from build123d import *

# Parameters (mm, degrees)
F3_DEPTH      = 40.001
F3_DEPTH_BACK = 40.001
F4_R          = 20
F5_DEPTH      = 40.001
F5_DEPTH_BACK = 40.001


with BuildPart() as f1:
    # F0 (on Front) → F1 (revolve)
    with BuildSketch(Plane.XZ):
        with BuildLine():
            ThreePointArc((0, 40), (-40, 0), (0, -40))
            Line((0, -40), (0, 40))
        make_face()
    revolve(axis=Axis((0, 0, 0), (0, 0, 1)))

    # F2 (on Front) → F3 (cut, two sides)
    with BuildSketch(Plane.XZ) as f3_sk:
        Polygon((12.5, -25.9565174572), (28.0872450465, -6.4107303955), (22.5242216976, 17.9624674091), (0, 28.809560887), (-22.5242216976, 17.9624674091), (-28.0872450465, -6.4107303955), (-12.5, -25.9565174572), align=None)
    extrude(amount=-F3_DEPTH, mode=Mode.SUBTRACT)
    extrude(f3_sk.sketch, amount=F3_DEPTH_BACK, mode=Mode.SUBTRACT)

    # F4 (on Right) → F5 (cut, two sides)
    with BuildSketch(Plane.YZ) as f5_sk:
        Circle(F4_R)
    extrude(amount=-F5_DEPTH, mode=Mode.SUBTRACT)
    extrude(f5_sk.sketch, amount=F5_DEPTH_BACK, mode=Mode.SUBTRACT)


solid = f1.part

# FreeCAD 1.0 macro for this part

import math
import FreeCAD as App
import Part
import Sketcher
from FreeCAD import Vector
Q = App.Units.Quantity

doc = App.newDocument("Part")
body = doc.addObject("PartDesign::Body", "Body")

# Sketch on XZ plane
sketch1 = doc.addObject("Sketcher::SketchObject", "Sketch")
body.addObject(sketch1)
sketch1.AttachmentSupport = (doc.XZ_Plane, [""])
sketch1.MapMode = "FlatFace"
sketch1.addGeometry(Part.ArcOfCircle(Part.Circle(Vector(0, 0, 0), Vector(0, 0, 1), 40), math.radians(90), math.radians(270)), False)
sketch1.addGeometry(Part.LineSegment(Vector(0, -40, 0), Vector(0, 40, 0)), False)
sketch1.addConstraint(Sketcher.Constraint("Coincident", 0, 1, 1, 2))
sketch1.addConstraint(Sketcher.Constraint("Coincident", 1, 1, 0, 2))
sketch1.addConstraint(Sketcher.Constraint("Vertical", 1))
sketch1.addConstraint(Sketcher.Constraint("Coincident", 0, 3, -1, 1))
sketch1.addConstraint(Sketcher.Constraint("PointOnObject", 0, 1, -2))
sketch1.addConstraint(Sketcher.Constraint("Radius", 0, Q("40 mm")))
revolution = doc.addObject("PartDesign::Revolution", "Revolution")
body.addObject(revolution)
revolution.Profile = sketch1
revolution.ReferenceAxis = (sketch1, ["V_Axis"])
revolution.Angle = 360

# Sketch on XZ plane
sketch2 = doc.addObject("Sketcher::SketchObject", "Sketch001")
body.addObject(sketch2)
sketch2.AttachmentSupport = (doc.XZ_Plane, [""])
sketch2.MapMode = "FlatFace"
sketch2.addGeometry(Part.LineSegment(Vector(12.5, -25.956517, 0), Vector(28.087245, -6.41073, 0)), False)
sketch2.addGeometry(Part.LineSegment(Vector(28.087245, -6.41073, 0), Vector(22.524222, 17.962467, 0)), False)
sketch2.addGeometry(Part.LineSegment(Vector(22.524222, 17.962467, 0), Vector(0, 28.809561, 0)), False)
sketch2.addGeometry(Part.LineSegment(Vector(0, 28.809561, 0), Vector(-22.524222, 17.962467, 0)), False)
sketch2.addGeometry(Part.LineSegment(Vector(-22.524222, 17.962467, 0), Vector(-28.087245, -6.41073, 0)), False)
sketch2.addGeometry(Part.LineSegment(Vector(-28.087245, -6.41073, 0), Vector(-12.5, -25.956517, 0)), False)
sketch2.addGeometry(Part.LineSegment(Vector(-12.5, -25.956517, 0), Vector(12.5, -25.956517, 0)), False)
sketch2.addConstraint(Sketcher.Constraint("Coincident", 0, 2, 1, 1))
sketch2.addConstraint(Sketcher.Constraint("Coincident", 1, 2, 2, 1))
sketch2.addConstraint(Sketcher.Constraint("Coincident", 2, 2, 3, 1))
sketch2.addConstraint(Sketcher.Constraint("Coincident", 3, 2, 4, 1))
sketch2.addConstraint(Sketcher.Constraint("Coincident", 4, 2, 5, 1))
sketch2.addConstraint(Sketcher.Constraint("Coincident", 5, 2, 6, 1))
sketch2.addConstraint(Sketcher.Constraint("Coincident", 6, 2, 0, 1))
sketch2.addConstraint(Sketcher.Constraint("Horizontal", 6))
sketch2.addConstraint(Sketcher.Constraint("Symmetric", 1, 2, 3, 2, -2))
sketch2.addConstraint(Sketcher.Constraint("Symmetric", 0, 2, 4, 2, -2))
sketch2.addConstraint(Sketcher.Constraint("PointOnObject", 2, 2, -2))
sketch2.addConstraint(Sketcher.Constraint("Equal", 0, 1))
sketch2.addConstraint(Sketcher.Constraint("Equal", 1, 2))
sketch2.addConstraint(Sketcher.Constraint("Equal", 4, 5))
sketch2.addConstraint(Sketcher.Constraint("DistanceX", 6, 1, 6, 2, Q("25 mm")))
sketch2.addConstraint(Sketcher.Constraint("Distance", 0, Q("25 mm")))
sketch2.addConstraint(Sketcher.Constraint("DistanceY", 0, 2, -1, 1, Q("6.41073 mm")))
sketch2.addConstraint(Sketcher.Constraint("DistanceX", -1, 1, 1, 2, Q("22.524222 mm")))
sketch2.addConstraint(Sketcher.Constraint("DistanceY", -1, 1, 2, 2, Q("28.809561 mm")))
pocket1 = doc.addObject("PartDesign::Pocket", "Pocket")
body.addObject(pocket1)
pocket1.Profile = sketch2
pocket1.Type = "ThroughAll"
pocket1.Midplane = True

# Sketch on YZ plane
sketch3 = doc.addObject("Sketcher::SketchObject", "Sketch002")
body.addObject(sketch3)
sketch3.AttachmentSupport = (doc.YZ_Plane, [""])
sketch3.MapMode = "FlatFace"
sketch3.addGeometry(Part.Circle(Vector(0, 0, 0), Vector(0, 0, 1), 20), False)
sketch3.addConstraint(Sketcher.Constraint("Coincident", 0, 3, -1, 1))
sketch3.addConstraint(Sketcher.Constraint("Diameter", 0, Q("40 mm")))
pocket2 = doc.addObject("PartDesign::Pocket", "Pocket001")
body.addObject(pocket2)
pocket2.Profile = sketch3
pocket2.Type = "ThroughAll"
pocket2.Midplane = True

doc.recompute()
